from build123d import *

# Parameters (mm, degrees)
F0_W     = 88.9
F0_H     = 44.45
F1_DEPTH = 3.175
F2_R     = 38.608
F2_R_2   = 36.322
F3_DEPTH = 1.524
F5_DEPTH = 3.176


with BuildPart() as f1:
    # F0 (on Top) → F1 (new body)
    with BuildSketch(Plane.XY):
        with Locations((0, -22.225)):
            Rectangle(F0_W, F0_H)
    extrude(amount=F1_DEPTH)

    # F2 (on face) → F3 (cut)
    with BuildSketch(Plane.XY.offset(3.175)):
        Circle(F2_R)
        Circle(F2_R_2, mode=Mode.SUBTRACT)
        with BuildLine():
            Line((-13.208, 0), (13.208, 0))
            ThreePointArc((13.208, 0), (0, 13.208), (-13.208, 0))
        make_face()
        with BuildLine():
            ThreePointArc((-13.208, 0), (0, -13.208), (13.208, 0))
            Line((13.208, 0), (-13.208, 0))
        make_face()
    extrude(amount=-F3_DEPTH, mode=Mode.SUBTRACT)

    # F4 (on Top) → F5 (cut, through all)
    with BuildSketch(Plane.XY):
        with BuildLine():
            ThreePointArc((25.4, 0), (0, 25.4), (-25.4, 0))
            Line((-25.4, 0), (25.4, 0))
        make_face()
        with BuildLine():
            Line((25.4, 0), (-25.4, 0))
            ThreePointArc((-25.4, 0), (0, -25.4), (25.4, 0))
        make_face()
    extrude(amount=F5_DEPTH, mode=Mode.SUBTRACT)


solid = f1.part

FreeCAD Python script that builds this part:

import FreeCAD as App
import Part
import Sketcher
Q = App.Units.Quantity


def add_polygon(sketch, points):
    """Adds a closed chain of lines whose ends are joined by coincident constraints."""
    first, n = sketch.GeometryCount, len(points)
    for a, b in zip(points, points[1:] + points[:1]):
        sketch.addGeometry(Part.LineSegment(App.Vector(*a, 0), App.Vector(*b, 0)), False)
    for i in range(n):
        sketch.addConstraint(Sketcher.Constraint("Coincident", first + i, 2, first + (i + 1) % n, 1))

doc = App.newDocument("Part")
body = doc.addObject("PartDesign::Body", "Body")

# Sketch on XY plane
sketch1 = body.newObject("Sketcher::SketchObject", "Sketch")
sketch1.AttachmentSupport = (doc.getObject("XY_Plane"), [""])
sketch1.MapMode = "FlatFace"
add_polygon(sketch1, [(-44, 0), (-44, -44), (44, -44), (44, 0)])  # lines 0-3
sketch1.addConstraint([
    Sketcher.Constraint("Vertical", 0),
    Sketcher.Constraint("Horizontal", 1),
    Sketcher.Constraint("Vertical", 2),
    Sketcher.Constraint("Horizontal", 3),
    Sketcher.Constraint("Symmetric", 2, 2, 3, 2, -1, 1),
    Sketcher.Constraint("DistanceX", 1, 1, 1, 2, Q("3.5 in")),
    Sketcher.Constraint("DistanceY", 0, 2, 0, 1, Q("1.75 in")),
])
pad1 = body.newObject("PartDesign::Pad", "Pad")
pad1.Profile = sketch1
pad1.Length = Q("0.125 in")

# Sketch on XY plane
sketch2 = body.newObject("Sketcher::SketchObject", "Sketch001")
sketch2.AttachmentSupport = (doc.getObject("XY_Plane"), [""])
sketch2.MapMode = "FlatFace"
sketch2.AttachmentOffset = App.Placement(App.Vector(0, 0, 0.125 * 25.4), App.Rotation())
sketch2.addGeometry([
    Part.Circle(App.Vector(0, 0, 0), App.Vector(0, 0, 1), 39),
    Part.Circle(App.Vector(0, 0, 0), App.Vector(0, 0, 1), 36),
    Part.Circle(App.Vector(0, 0, 0), App.Vector(0, 0, 1), 13),
], False)
sketch2.addConstraint([
    Sketcher.Constraint("Coincident", 0, 3, -1, 1),
    Sketcher.Constraint("Coincident", 1, 3, -1, 1),
    Sketcher.Constraint("Coincident", 2, 3, -1, 1),
    Sketcher.Constraint("Diameter", 0, Q("3.04 in")),
    Sketcher.Constraint("Diameter", 1, Q("2.86 in")),
    Sketcher.Constraint("Diameter", 2, Q("1.04 in")),
])
pocket1 = body.newObject("PartDesign::Pocket", "Pocket")
pocket1.Profile = sketch2
pocket1.Length = Q("0.06 in")

# Sketch on XY plane
sketch3 = body.newObject("Sketcher::SketchObject", "Sketch002")
sketch3.AttachmentSupport = (doc.getObject("XY_Plane"), [""])
sketch3.MapMode = "FlatFace"
sketch3.addGeometry(Part.Circle(App.Vector(0, 0, 0), App.Vector(0, 0, 1), 25), False)
sketch3.addConstraint([
    Sketcher.Constraint("Coincident", 0, 3, -1, 1),
    Sketcher.Constraint("Diameter", 0, Q("2 in")),
])
pocket2 = body.newObject("PartDesign::Pocket", "Pocket001")
pocket2.Profile = sketch3
pocket2.Type = "ThroughAll"
pocket2.Reversed = True

doc.recompute()
